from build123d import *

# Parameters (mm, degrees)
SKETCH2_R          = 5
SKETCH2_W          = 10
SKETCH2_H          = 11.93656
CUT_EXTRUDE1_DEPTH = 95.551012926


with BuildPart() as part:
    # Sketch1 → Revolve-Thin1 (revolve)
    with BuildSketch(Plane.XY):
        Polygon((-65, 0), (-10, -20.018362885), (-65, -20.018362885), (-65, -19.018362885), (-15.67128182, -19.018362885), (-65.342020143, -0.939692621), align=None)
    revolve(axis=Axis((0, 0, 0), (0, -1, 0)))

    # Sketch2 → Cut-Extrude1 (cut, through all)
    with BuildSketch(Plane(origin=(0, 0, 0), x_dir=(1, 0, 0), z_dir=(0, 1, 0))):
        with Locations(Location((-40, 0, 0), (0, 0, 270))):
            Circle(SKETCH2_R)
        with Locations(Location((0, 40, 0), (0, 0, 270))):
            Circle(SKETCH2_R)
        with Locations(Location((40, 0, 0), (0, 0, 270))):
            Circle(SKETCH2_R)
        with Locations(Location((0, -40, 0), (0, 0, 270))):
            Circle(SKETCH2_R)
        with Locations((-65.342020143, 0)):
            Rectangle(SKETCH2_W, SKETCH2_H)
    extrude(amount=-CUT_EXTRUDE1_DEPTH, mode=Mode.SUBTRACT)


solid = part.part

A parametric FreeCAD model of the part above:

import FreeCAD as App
import Part
import Sketcher

V = App.Vector
Q = App.Units.Quantity

doc = App.newDocument("Part")
body = doc.addObject("PartDesign::Body", "Body")

# Sketch on XY plane
sketch1 = body.newObject("Sketcher::SketchObject", "Sketch")
sketch1.AttachmentSupport = (doc.getObject("XY_Plane"), [""])
sketch1.MapMode = "FlatFace"
sketch1.addGeometry(Part.LineSegment(V(-10, -20, 0), V(-65, 0, 0)), False)
sketch1.addGeometry(Part.LineSegment(V(-65, 0, 0), V(-65.3, -0.9, 0)), False)
sketch1.addGeometry(Part.LineSegment(V(-65.3, -0.9, 0), V(-15.7, -19, 0)), False)
sketch1.addGeometry(Part.LineSegment(V(-15.7, -19, 0), V(-65, -19, 0)), False)
sketch1.addGeometry(Part.LineSegment(V(-65, -19, 0), V(-65, -20, 0)), False)
sketch1.addGeometry(Part.LineSegment(V(-65, -20, 0), V(-10, -20, 0)), False)
sketch1.addConstraint(Sketcher.Constraint("Coincident", 0, 2, 1, 1))
sketch1.addConstraint(Sketcher.Constraint("Coincident", 1, 2, 2, 1))
sketch1.addConstraint(Sketcher.Constraint("Coincident", 2, 2, 3, 1))
sketch1.addConstraint(Sketcher.Constraint("Coincident", 3, 2, 4, 1))
sketch1.addConstraint(Sketcher.Constraint("Coincident", 4, 2, 5, 1))
sketch1.addConstraint(Sketcher.Constraint("Coincident", 5, 2, 0, 1))
sketch1.addConstraint(Sketcher.Constraint("Horizontal", 3))
sketch1.addConstraint(Sketcher.Constraint("Vertical", 4))
sketch1.addConstraint(Sketcher.Constraint("Horizontal", 5))
sketch1.addConstraint(Sketcher.Constraint("PointOnObject", 0, 2, -1))
sketch1.addConstraint(Sketcher.Constraint("Perpendicular", 0, 1))
sketch1.addConstraint(Sketcher.Constraint("Perpendicular", 1, 2))
sketch1.addConstraint(Sketcher.Constraint("Vertical", 0, 2, 3, 2))
sketch1.addConstraint(Sketcher.Constraint("DistanceX", 5, 1, 5, 2, Q("55 mm")))
sketch1.addConstraint(Sketcher.Constraint("DistanceY", 4, 2, 4, 1, Q("1 mm")))
sketch1.addConstraint(Sketcher.Constraint("Angle", 0, Q("160 deg")))
sketch1.addConstraint(Sketcher.Constraint("Distance", 1, Q("1 mm")))
sketch1.addConstraint(Sketcher.Constraint("DistanceX", 0, 2, -1, 1, Q("65 mm")))
revolution = body.newObject("PartDesign::Revolution", "Revolution")
revolution.Profile = sketch1
revolution.ReferenceAxis = (sketch1, ["V_Axis"])
revolution.Angle = 360

# Sketch on XZ plane
sketch2 = body.newObject("Sketcher::SketchObject", "Sketch001")
sketch2.AttachmentSupport = (doc.getObject("XZ_Plane"), [""])
sketch2.MapMode = "FlatFace"
sketch2.addGeometry(Part.Circle(V(-40, 0, 0), V(0, 0, 1), 5), False)
sketch2.addGeometry(Part.Circle(V(0, -40, 0), V(0, 0, 1), 5), False)
sketch2.addGeometry(Part.Circle(V(40, 0, 0), V(0, 0, 1), 5), False)
sketch2.addGeometry(Part.Circle(V(0, 40, 0), V(0, 0, 1), 5), False)
sketch2.addGeometry(Part.LineSegment(V(-70, -6, 0), V(-70, 6, 0)), False)
sketch2.addGeometry(Part.LineSegment(V(-70, 6, 0), V(-60, 6, 0)), False)
sketch2.addGeometry(Part.LineSegment(V(-60, 6, 0), V(-60, -6, 0)), False)
sketch2.addGeometry(Part.LineSegment(V(-60, -6, 0), V(-70, -6, 0)), False)
sketch2.addConstraint(Sketcher.Constraint("Coincident", 4, 2, 5, 1))
sketch2.addConstraint(Sketcher.Constraint("Coincident", 5, 2, 6, 1))
sketch2.addConstraint(Sketcher.Constraint("Coincident", 6, 2, 7, 1))
sketch2.addConstraint(Sketcher.Constraint("Coincident", 7, 2, 4, 1))
sketch2.addConstraint(Sketcher.Constraint("Vertical", 4))
sketch2.addConstraint(Sketcher.Constraint("Horizontal", 5))
sketch2.addConstraint(Sketcher.Constraint("Vertical", 6))
sketch2.addConstraint(Sketcher.Constraint("Horizontal", 7))
sketch2.addConstraint(Sketcher.Constraint("Equal", 0, 1))
sketch2.addConstraint(Sketcher.Constraint("Equal", 1, 2))
sketch2.addConstraint(Sketcher.Constraint("Equal", 2, 3))
sketch2.addConstraint(Sketcher.Constraint("Symmetric", 0, 3, 2, 3, -1, 1))
sketch2.addConstraint(Sketcher.Constraint("Symmetric", 1, 3, 3, 3, -1, 1))
sketch2.addConstraint(Sketcher.Constraint("PointOnObject", 0, 3, -1))
sketch2.addConstraint(Sketcher.Constraint("PointOnObject", 1, 3, -2))
sketch2.addConstraint(Sketcher.Constraint("Diameter", 0, Q("10 mm")))
sketch2.addConstraint(Sketcher.Constraint("DistanceX", 5, 1, 5, 2, Q("10 mm")))
sketch2.addConstraint(Sketcher.Constraint("DistanceX", 0, 3, -1, 1, Q("40 mm")))
sketch2.addConstraint(Sketcher.Constraint("DistanceY", 1, 3, -1, 1, Q("40 mm")))
sketch2.addConstraint(Sketcher.Constraint("DistanceY", 4, 1, 4, 2, Q("11.93656 mm")))
sketch2.addConstraint(Sketcher.Constraint("DistanceX", 4, 2, -1, 1, Q("70.34202 mm")))
sketch2.addConstraint(Sketcher.Constraint("DistanceY", -1, 1, 4, 2, Q("5.96828 mm")))
pocket1 = body.newObject("PartDesign::Pocket", "Pocket")
pocket1.Profile = sketch2
pocket1.Type = "ThroughAll"
pocket1.Reversed = True

doc.recompute()
